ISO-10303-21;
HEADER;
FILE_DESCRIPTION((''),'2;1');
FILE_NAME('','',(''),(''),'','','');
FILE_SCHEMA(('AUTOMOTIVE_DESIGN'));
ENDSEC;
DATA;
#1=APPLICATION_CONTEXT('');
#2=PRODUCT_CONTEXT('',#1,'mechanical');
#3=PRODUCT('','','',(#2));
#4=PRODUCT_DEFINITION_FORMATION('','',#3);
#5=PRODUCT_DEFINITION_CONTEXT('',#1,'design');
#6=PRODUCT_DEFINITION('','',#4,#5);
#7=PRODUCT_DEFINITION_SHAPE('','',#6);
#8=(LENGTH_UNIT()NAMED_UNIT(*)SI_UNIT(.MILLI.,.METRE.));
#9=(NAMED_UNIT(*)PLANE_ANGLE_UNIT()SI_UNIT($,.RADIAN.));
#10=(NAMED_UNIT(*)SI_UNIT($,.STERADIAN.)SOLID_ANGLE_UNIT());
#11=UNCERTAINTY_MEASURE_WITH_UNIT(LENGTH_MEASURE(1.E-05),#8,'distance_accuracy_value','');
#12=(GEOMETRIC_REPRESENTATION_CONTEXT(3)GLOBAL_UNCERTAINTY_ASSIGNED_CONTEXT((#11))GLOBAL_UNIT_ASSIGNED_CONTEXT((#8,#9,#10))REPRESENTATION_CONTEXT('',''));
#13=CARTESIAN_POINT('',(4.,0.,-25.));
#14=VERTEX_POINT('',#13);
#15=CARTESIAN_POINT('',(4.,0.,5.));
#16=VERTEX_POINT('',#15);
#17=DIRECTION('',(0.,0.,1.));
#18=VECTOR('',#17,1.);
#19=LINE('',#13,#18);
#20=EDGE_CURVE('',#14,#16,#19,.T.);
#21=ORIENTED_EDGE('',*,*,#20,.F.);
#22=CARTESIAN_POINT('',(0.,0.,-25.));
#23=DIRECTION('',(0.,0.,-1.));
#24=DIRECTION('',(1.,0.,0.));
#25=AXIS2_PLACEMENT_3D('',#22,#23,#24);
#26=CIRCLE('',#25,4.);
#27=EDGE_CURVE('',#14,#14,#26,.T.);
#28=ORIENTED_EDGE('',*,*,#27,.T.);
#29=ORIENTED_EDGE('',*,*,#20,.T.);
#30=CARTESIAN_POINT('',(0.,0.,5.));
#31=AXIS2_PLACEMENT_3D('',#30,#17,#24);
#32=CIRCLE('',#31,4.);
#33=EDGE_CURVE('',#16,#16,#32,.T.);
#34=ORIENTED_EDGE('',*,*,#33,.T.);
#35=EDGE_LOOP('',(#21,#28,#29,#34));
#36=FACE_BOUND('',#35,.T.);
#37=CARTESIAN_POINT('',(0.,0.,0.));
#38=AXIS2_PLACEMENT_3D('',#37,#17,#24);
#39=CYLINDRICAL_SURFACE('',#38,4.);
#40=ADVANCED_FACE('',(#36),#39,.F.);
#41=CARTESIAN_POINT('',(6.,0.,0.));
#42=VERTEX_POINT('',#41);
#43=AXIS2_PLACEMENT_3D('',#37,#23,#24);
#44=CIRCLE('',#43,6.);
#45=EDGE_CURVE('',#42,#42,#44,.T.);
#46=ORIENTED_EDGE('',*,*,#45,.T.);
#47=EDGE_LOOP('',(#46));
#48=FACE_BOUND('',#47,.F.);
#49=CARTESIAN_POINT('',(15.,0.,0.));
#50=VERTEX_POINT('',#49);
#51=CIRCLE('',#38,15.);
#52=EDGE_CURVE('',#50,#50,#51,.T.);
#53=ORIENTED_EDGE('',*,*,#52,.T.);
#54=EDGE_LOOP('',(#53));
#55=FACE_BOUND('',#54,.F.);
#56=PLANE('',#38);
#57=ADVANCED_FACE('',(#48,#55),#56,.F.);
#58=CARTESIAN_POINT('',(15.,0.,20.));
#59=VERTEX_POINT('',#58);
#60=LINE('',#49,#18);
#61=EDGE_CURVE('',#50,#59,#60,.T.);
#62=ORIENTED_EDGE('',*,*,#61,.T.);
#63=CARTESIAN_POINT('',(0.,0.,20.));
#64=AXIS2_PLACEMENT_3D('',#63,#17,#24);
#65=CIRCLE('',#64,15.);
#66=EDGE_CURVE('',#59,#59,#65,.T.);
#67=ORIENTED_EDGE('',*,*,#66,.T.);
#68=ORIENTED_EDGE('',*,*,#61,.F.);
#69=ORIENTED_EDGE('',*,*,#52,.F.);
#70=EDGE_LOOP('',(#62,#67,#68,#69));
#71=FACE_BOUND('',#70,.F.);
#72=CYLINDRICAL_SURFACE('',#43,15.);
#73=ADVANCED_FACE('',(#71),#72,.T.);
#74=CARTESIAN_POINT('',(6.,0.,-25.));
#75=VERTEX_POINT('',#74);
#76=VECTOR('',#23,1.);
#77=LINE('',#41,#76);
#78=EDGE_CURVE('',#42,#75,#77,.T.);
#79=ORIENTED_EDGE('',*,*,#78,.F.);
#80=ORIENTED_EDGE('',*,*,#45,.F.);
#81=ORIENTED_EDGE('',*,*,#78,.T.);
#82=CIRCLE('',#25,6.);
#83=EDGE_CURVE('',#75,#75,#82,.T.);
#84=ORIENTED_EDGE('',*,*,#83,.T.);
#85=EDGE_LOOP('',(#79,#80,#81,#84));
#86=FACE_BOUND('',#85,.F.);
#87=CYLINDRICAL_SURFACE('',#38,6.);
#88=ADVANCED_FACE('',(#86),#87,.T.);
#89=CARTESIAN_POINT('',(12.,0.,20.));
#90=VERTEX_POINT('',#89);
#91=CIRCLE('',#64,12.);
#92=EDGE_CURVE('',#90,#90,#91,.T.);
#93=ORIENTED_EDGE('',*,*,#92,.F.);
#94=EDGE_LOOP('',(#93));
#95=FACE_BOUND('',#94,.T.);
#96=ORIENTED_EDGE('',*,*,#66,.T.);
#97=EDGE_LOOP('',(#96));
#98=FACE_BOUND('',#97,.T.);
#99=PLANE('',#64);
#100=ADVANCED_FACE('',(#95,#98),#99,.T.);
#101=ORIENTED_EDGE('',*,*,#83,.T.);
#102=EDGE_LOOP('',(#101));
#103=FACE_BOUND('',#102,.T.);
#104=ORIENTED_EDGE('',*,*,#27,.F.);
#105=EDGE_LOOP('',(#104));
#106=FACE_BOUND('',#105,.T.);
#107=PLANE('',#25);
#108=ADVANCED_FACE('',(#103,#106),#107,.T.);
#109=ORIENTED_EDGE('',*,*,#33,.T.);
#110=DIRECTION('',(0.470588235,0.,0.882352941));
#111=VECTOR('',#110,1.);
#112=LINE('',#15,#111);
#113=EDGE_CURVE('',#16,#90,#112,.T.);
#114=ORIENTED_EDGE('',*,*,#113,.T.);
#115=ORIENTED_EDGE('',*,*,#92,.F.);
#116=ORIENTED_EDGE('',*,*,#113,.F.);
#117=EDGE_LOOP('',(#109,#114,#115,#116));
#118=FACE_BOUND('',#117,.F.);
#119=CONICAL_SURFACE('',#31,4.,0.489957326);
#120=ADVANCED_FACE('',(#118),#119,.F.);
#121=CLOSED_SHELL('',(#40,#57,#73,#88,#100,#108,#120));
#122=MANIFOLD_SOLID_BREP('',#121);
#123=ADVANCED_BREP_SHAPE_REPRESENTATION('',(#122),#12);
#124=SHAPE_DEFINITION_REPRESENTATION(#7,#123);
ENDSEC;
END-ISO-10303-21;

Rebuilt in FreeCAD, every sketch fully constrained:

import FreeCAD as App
import Part
import Sketcher
Q = App.Units.Quantity


def edges_at(feature, points):
    """Names of the edges that pass closest to the given points."""
    edges = feature.Shape.Edges
    near = lambda p: min(range(len(edges)), key=lambda i: edges[i].distToShape(Part.Vertex(*p))[0])
    return sorted({f"Edge{near(p) + 1}" for p in points})

doc = App.newDocument("Part")
params = doc.addObject("Spreadsheet::Sheet", "Params")
for row, (alias, value) in enumerate([
    ("sketch1_diameter", "30 mm"),
    ("sketch1_diameter2", "8 mm"),
    ("pad1_length", "20 mm"),
    ("chamfer_size", "15 mm"),
    ("chamfer_size2", "8 mm"),
    ("sketch2_diameter", "12 mm"),
    ("sketch2_diameter2", "8 mm"),
    ("pad2_length", "25 mm"),
], start=1):
    params.set(f"A{row}", alias)
    params.set(f"B{row}", "=" + value)
    params.setAlias(f"B{row}", alias)

body = doc.addObject("PartDesign::Body", "Body")

# Sketch on XY plane
sketch1 = doc.addObject("Sketcher::SketchObject", "Sketch")
body.addObject(sketch1)
sketch1.AttachmentSupport = (doc.XY_Plane, [""])
sketch1.MapMode = "FlatFace"
sketch1.addGeometry(Part.Circle(App.Vector(0, 0, 0), App.Vector(0, 0, 1), 15), False)
sketch1.addGeometry(Part.Circle(App.Vector(0, 0, 0), App.Vector(0, 0, 1), 4), False)
sketch1.addConstraint(Sketcher.Constraint("Coincident", 0, 3, -1, 1))
sketch1.addConstraint(Sketcher.Constraint("Coincident", 1, 3, -1, 1))
sketch1.addConstraint(Sketcher.Constraint("Diameter", 0, Q("30 mm")))
sketch1.addConstraint(Sketcher.Constraint("Diameter", 1, Q("8 mm")))
sketch1.setExpression("Constraints[2]", "Params.sketch1_diameter")
sketch1.setExpression("Constraints[3]", "Params.sketch1_diameter2")
pad1 = doc.addObject("PartDesign::Pad", "Pad")
body.addObject(pad1)
pad1.Profile = sketch1
pad1.setExpression("Length", "Params.pad1_length")
doc.recompute()

chamfer = doc.addObject("PartDesign::Chamfer", "Chamfer")
body.addObject(chamfer)
chamfer.Base = (pad1, edges_at(pad1, [(-4, 0, 20)]))
chamfer.ChamferType = "Two distances"
chamfer.setExpression("Size", "Params.chamfer_size")
chamfer.setExpression("Size2", "Params.chamfer_size2")

# Sketch on XY plane
sketch2 = doc.addObject("Sketcher::SketchObject", "Sketch001")
body.addObject(sketch2)
sketch2.AttachmentSupport = (doc.XY_Plane, [""])
sketch2.MapMode = "FlatFace"
sketch2.addGeometry(Part.Circle(App.Vector(0, 0, 0), App.Vector(0, 0, 1), 6), False)
sketch2.addGeometry(Part.Circle(App.Vector(0, 0, 0), App.Vector(0, 0, 1), 4), False)
sketch2.addConstraint(Sketcher.Constraint("Coincident", 0, 3, -1, 1))
sketch2.addConstraint(Sketcher.Constraint("Coincident", 1, 3, -1, 1))
sketch2.addConstraint(Sketcher.Constraint("Diameter", 0, Q("12 mm")))
sketch2.addConstraint(Sketcher.Constraint("Diameter", 1, Q("8 mm")))
sketch2.setExpression("Constraints[2]", "Params.sketch2_diameter")
sketch2.setExpression("Constraints[3]", "Params.sketch2_diameter2")
pad2 = doc.addObject("PartDesign::Pad", "Pad001")
body.addObject(pad2)
pad2.Profile = sketch2
pad2.setExpression("Length", "Params.pad2_length")
pad2.Reversed = True

doc.recompute()
